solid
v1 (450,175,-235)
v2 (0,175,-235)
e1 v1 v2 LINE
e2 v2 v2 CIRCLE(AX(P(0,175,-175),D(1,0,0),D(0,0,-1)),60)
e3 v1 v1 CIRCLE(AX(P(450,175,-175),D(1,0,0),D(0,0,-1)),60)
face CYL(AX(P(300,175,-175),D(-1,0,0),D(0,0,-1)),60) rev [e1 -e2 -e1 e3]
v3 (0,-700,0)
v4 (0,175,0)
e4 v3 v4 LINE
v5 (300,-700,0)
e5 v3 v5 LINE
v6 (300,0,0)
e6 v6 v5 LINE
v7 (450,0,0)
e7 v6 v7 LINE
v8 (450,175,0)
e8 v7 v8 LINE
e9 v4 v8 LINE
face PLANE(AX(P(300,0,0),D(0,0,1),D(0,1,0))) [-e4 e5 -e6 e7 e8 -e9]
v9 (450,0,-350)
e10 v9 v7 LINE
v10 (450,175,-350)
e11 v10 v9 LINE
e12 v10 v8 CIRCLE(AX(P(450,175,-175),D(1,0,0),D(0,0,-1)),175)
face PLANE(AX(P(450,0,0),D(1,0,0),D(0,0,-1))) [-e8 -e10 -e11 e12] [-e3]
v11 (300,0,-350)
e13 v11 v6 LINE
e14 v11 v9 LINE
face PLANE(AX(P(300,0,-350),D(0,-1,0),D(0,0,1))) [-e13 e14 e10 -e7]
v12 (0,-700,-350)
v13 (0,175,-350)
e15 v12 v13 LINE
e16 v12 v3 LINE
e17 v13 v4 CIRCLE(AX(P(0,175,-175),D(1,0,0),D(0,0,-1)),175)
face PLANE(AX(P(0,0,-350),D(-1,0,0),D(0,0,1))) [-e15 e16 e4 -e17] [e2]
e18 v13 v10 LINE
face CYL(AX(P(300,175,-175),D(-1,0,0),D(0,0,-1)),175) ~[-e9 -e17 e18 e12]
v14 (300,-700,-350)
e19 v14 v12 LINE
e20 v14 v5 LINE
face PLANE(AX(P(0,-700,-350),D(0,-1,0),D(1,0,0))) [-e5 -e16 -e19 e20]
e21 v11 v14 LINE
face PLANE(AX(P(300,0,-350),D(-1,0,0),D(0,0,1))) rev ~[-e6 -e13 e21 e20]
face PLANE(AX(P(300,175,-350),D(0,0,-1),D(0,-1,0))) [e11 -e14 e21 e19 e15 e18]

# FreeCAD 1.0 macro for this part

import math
import FreeCAD as App
import Part
import Sketcher
Q = App.Units.Quantity

doc = App.newDocument("Part")
body = doc.addObject("PartDesign::Body", "Body")

# Sketch on YZ plane
sketch1 = body.newObject("Sketcher::SketchObject", "Sketch")
sketch1.AttachmentSupport = (doc.getObject("YZ_Plane"), [""])
sketch1.MapMode = "FlatFace"
sketch1.addGeometry(Part.LineSegment(App.Vector(175, 0, 0), App.Vector(0, 0, 0)), False)
sketch1.addGeometry(Part.LineSegment(App.Vector(0, 0, 0), App.Vector(0, -350, 0)), False)
sketch1.addGeometry(Part.LineSegment(App.Vector(0, -350, 0), App.Vector(175, -350, 0)), False)
sketch1.addGeometry(Part.ArcOfCircle(Part.Circle(App.Vector(175, -175, 0), App.Vector(0, 0, 1), 175), math.radians(-90), math.radians(90)), False)
sketch1.addConstraint(Sketcher.Constraint("Coincident", 0, 2, 1, 1))
sketch1.addConstraint(Sketcher.Constraint("Coincident", 1, 2, 2, 1))
sketch1.addConstraint(Sketcher.Constraint("Tangent", 2, 2, 3, 1))
sketch1.addConstraint(Sketcher.Constraint("Tangent", 3, 2, 0, 1))
sketch1.addConstraint(Sketcher.Constraint("Horizontal", 0))
sketch1.addConstraint(Sketcher.Constraint("Vertical", 1))
sketch1.addConstraint(Sketcher.Constraint("Horizontal", 2))
sketch1.addConstraint(Sketcher.Constraint("Coincident", 0, 2, -1, 1))
sketch1.addConstraint(Sketcher.Constraint("Radius", 3, Q("175 mm")))
sketch1.addConstraint(Sketcher.Constraint("DistanceX", 0, 2, 0, 1, Q("175 mm")))
pad1 = body.newObject("PartDesign::Pad", "Pad")
pad1.Profile = sketch1
pad1.Length = 300

# Sketch on YZ plane
sketch2 = body.newObject("Sketcher::SketchObject", "Sketch001")
sketch2.AttachmentSupport = (doc.getObject("YZ_Plane"), [""])
sketch2.MapMode = "FlatFace"
sketch2.AttachmentOffset = App.Placement(App.Vector(0, 0, 300), App.Rotation())
sketch2.addGeometry(Part.Circle(App.Vector(175, -175, 0), App.Vector(0, 0, 1), 60), False)
sketch2.addConstraint(Sketcher.Constraint("Diameter", 0, Q("120 mm")))
sketch2.addConstraint(Sketcher.Constraint("DistanceX", -1, 1, 0, 3, Q("175 mm")))
sketch2.addConstraint(Sketcher.Constraint("DistanceY", 0, 3, -1, 1, Q("175 mm")))
pocket1 = body.newObject("PartDesign::Pocket", "Pocket")
pocket1.Profile = sketch2
pocket1.Length = 300

# Sketch on XZ plane
sketch3 = body.newObject("Sketcher::SketchObject", "Sketch002")
sketch3.AttachmentSupport = (doc.getObject("XZ_Plane"), [""])
sketch3.MapMode = "FlatFace"
sketch3.addGeometry(Part.LineSegment(App.Vector(0, -350, 0), App.Vector(300, -350, 0)), False)
sketch3.addGeometry(Part.LineSegment(App.Vector(300, -350, 0), App.Vector(300, 0, 0)), False)
sketch3.addGeometry(Part.LineSegment(App.Vector(300, 0, 0), App.Vector(0, 0, 0)), False)
sketch3.addGeometry(Part.LineSegment(App.Vector(0, 0, 0), App.Vector(0, -350, 0)), False)
sketch3.addConstraint(Sketcher.Constraint("Coincident", 0, 2, 1, 1))
sketch3.addConstraint(Sketcher.Constraint("Coincident", 1, 2, 2, 1))
sketch3.addConstraint(Sketcher.Constraint("Coincident", 2, 2, 3, 1))
sketch3.addConstraint(Sketcher.Constraint("Coincident", 3, 2, 0, 1))
sketch3.addConstraint(Sketcher.Constraint("Horizontal", 0))
sketch3.addConstraint(Sketcher.Constraint("Vertical", 1))
sketch3.addConstraint(Sketcher.Constraint("Horizontal", 2))
sketch3.addConstraint(Sketcher.Constraint("Vertical", 3))
sketch3.addConstraint(Sketcher.Constraint("Coincident", 2, 2, -1, 1))
sketch3.addConstraint(Sketcher.Constraint("DistanceX", 0, 1, 0, 2, Q("300 mm")))
sketch3.addConstraint(Sketcher.Constraint("DistanceY", 1, 1, 1, 2, Q("350 mm")))
pad2 = body.newObject("PartDesign::Pad", "Pad001")
pad2.Profile = sketch3
pad2.Length = 700

# Sketch on YZ plane
sketch4 = body.newObject("Sketcher::SketchObject", "Sketch003")
sketch4.AttachmentSupport = (doc.getObject("YZ_Plane"), [""])
sketch4.MapMode = "FlatFace"
sketch4.AttachmentOffset = App.Placement(App.Vector(0, 0, 300), App.Rotation())
sketch4.addGeometry(Part.LineSegment(App.Vector(0, -350, 0), App.Vector(175, -350, 0)), False)
sketch4.addGeometry(Part.ArcOfCircle(Part.Circle(App.Vector(175, -175, 0), App.Vector(0, 0, 1), 175), math.radians(-90), math.radians(90)), False)
sketch4.addGeometry(Part.LineSegment(App.Vector(175, 0, 0), App.Vector(0, 0, 0)), False)
sketch4.addGeometry(Part.LineSegment(App.Vector(0, 0, 0), App.Vector(0, -350, 0)), False)
sketch4.addGeometry(Part.Circle(App.Vector(175, -175, 0), App.Vector(0, 0, 1), 60), False)
sketch4.addConstraint(Sketcher.Constraint("Tangent", 0, 2, 1, 1))
sketch4.addConstraint(Sketcher.Constraint("Tangent", 1, 2, 2, 1))
sketch4.addConstraint(Sketcher.Constraint("Coincident", 2, 2, 3, 1))
sketch4.addConstraint(Sketcher.Constraint("Coincident", 3, 2, 0, 1))
sketch4.addConstraint(Sketcher.Constraint("Horizontal", 0))
sketch4.addConstraint(Sketcher.Constraint("Horizontal", 2))
sketch4.addConstraint(Sketcher.Constraint("Vertical", 3))
sketch4.addConstraint(Sketcher.Constraint("Coincident", 2, 2, -1, 1))
sketch4.addConstraint(Sketcher.Constraint("Coincident", 4, 3, 1, 3))
sketch4.addConstraint(Sketcher.Constraint("Diameter", 4, Q("120 mm")))
sketch4.addConstraint(Sketcher.Constraint("Radius", 1, Q("175 mm")))
sketch4.addConstraint(Sketcher.Constraint("DistanceX", 0, 1, 0, 2, Q("175 mm")))
pad3 = body.newObject("PartDesign::Pad", "Pad002")
pad3.Profile = sketch4
pad3.Length = 150

doc.recompute()
